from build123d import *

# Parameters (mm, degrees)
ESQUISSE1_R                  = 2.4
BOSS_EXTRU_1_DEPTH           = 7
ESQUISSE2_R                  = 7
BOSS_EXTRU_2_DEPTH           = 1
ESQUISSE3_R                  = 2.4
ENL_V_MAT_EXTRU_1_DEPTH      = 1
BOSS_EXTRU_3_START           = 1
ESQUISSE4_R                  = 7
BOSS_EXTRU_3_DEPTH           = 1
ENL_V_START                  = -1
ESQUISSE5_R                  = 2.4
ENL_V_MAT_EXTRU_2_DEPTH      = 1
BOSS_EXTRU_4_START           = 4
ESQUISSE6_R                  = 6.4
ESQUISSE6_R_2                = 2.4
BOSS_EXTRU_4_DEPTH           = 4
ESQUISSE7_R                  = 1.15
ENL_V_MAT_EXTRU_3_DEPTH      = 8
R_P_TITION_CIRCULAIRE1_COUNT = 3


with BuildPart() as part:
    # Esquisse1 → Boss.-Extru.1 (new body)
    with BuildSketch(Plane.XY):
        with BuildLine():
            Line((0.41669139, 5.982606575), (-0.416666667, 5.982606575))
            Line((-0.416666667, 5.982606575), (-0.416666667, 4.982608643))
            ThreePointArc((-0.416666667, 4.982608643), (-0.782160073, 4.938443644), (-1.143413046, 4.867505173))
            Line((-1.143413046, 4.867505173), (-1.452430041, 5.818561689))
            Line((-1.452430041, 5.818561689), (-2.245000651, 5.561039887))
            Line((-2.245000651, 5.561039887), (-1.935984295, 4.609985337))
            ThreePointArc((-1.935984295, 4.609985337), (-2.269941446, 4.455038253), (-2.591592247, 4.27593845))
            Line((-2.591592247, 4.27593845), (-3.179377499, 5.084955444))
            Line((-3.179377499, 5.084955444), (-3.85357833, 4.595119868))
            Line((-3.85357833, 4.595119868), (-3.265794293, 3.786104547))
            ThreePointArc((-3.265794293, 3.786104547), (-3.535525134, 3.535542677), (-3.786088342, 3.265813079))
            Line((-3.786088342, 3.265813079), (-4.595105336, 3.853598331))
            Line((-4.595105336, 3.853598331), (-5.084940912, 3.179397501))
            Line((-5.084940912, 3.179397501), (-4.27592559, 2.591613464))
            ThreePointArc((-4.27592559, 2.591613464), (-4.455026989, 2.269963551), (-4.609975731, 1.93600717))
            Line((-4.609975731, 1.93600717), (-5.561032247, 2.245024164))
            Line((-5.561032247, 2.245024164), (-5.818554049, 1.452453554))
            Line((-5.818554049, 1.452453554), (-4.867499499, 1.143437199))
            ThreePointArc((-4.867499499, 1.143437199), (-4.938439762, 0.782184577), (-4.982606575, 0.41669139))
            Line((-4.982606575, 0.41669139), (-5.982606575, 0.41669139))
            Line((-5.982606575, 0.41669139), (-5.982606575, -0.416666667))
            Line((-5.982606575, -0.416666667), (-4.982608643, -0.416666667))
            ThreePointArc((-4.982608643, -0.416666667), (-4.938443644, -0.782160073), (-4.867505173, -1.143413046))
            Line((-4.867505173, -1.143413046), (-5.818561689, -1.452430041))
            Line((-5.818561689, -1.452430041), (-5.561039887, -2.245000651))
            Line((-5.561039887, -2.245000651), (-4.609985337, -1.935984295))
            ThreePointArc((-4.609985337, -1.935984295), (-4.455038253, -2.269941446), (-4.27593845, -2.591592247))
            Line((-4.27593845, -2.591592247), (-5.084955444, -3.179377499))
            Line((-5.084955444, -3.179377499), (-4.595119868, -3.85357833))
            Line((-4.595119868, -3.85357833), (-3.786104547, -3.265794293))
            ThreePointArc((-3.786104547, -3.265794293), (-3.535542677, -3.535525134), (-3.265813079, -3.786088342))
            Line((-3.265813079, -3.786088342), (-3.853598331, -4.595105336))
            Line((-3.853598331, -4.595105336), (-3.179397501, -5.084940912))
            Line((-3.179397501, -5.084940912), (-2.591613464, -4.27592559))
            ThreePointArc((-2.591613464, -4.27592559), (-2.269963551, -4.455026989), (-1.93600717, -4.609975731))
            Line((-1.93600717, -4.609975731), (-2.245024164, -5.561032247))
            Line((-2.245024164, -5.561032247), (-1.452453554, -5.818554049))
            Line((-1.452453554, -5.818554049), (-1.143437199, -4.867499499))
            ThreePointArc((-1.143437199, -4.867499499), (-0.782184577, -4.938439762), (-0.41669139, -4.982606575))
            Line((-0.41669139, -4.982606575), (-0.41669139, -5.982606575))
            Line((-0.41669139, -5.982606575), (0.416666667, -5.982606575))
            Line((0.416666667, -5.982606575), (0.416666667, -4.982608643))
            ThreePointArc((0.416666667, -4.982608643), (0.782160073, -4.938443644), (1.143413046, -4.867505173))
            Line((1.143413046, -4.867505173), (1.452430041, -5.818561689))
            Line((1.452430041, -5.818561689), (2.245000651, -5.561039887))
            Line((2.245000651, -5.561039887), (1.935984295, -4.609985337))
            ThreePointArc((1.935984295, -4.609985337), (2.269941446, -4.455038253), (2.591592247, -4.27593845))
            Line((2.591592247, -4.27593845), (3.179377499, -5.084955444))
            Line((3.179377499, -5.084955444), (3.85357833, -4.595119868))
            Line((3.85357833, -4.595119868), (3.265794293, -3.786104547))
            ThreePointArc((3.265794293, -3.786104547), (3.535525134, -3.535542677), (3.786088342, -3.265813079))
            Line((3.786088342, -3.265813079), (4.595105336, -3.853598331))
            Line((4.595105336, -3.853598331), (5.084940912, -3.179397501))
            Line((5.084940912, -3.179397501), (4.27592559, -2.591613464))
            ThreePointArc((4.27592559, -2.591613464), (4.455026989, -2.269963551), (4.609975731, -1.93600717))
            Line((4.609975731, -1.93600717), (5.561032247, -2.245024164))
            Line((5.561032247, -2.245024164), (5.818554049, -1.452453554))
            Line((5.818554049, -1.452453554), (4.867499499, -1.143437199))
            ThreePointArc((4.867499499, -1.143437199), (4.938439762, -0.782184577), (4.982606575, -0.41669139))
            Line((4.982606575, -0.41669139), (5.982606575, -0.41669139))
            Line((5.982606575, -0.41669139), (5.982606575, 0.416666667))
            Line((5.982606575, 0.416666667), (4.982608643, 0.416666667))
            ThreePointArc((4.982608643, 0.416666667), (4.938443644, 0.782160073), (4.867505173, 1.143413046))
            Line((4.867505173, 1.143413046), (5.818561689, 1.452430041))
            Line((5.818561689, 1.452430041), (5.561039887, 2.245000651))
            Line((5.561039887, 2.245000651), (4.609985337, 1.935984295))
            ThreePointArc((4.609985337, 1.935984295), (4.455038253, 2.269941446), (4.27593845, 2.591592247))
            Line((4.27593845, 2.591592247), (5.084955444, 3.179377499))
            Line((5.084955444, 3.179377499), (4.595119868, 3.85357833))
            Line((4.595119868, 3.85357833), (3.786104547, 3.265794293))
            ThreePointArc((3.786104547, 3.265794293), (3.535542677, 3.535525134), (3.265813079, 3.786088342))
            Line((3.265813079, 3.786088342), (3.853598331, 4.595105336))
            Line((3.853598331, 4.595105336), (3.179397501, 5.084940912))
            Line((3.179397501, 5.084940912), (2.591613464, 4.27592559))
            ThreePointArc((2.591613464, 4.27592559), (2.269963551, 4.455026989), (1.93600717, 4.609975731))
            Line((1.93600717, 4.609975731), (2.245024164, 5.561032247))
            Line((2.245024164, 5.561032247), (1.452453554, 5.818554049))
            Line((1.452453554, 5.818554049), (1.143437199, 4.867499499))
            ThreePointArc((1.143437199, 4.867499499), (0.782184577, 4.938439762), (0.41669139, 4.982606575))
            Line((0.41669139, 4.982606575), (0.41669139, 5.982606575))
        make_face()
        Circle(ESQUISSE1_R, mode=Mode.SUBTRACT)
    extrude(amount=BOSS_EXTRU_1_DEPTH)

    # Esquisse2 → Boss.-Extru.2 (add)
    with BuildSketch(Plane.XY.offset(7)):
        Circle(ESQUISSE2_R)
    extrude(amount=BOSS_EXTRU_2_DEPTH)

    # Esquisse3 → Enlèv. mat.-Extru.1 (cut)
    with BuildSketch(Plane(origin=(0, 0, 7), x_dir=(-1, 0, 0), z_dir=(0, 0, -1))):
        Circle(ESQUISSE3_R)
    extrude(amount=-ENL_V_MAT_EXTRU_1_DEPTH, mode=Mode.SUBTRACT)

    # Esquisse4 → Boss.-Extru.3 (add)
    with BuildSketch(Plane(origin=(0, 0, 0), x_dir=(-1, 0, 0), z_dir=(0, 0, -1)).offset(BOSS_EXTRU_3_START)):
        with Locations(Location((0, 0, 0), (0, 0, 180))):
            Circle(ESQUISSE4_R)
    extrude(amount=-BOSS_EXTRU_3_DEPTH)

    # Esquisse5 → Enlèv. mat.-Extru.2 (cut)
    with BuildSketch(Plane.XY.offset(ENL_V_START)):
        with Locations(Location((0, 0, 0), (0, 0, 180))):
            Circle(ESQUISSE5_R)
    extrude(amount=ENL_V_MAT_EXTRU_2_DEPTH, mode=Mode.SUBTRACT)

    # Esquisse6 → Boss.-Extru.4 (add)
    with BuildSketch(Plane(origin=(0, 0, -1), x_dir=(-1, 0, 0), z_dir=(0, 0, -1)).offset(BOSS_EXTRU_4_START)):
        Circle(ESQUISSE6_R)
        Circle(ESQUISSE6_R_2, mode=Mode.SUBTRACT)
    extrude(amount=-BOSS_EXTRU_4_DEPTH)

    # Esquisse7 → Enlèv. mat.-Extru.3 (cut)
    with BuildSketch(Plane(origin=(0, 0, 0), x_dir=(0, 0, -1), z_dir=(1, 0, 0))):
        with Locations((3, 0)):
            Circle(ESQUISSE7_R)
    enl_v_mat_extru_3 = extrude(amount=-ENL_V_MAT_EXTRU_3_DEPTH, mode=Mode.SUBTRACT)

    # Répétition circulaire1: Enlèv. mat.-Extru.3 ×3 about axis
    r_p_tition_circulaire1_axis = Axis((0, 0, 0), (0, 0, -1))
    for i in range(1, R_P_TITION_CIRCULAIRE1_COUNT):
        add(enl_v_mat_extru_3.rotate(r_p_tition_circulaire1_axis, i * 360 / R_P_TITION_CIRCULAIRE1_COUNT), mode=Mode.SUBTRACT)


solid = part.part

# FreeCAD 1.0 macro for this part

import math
import FreeCAD as App
import Part
import Sketcher

V = App.Vector
Q = App.Units.Quantity

doc = App.newDocument("Part")
body = doc.addObject("PartDesign::Body", "Body")

# Sketch on XY plane
sketch1 = doc.addObject("Sketcher::SketchObject", "Sketch")
body.addObject(sketch1)
sketch1.AttachmentSupport = (doc.XY_Plane, [""])
sketch1.MapMode = "FlatFace"
sketch1.addGeometry([
    Part.LineSegment(V(0.416691, 5.982607, 0), V(-0.416667, 5.982607, 0)),  # 0
    Part.LineSegment(V(-0.416667, 5.982607, 0), V(-0.416667, 4.982609, 0)),  # 1
    Part.ArcOfCircle(Part.Circle(V(0, 0, 0), V(0, 0, 1), 5), math.radians(94.780192), math.radians(103.219524)),  # 2
    Part.LineSegment(V(-1.143413, 4.867505, 0), V(-1.45243, 5.818562, 0)),  # 3
    Part.LineSegment(V(-1.45243, 5.818562, 0), V(-2.245001, 5.56104, 0)),  # 4
    Part.LineSegment(V(-2.245001, 5.56104, 0), V(-1.935984, 4.609985, 0)),  # 5
    Part.ArcOfCircle(Part.Circle(V(0, 0, 0), V(0, 0, 1), 5), math.radians(112.780192), math.radians(121.219524)),  # 6
    Part.LineSegment(V(-2.591592, 4.275938, 0), V(-3.179377, 5.084955, 0)),  # 7
    Part.LineSegment(V(-3.179377, 5.084955, 0), V(-3.853578, 4.59512, 0)),  # 8
    Part.LineSegment(V(-3.853578, 4.59512, 0), V(-3.265794, 3.786105, 0)),  # 9
    Part.ArcOfCircle(Part.Circle(V(0, 0, 0), V(0, 0, 1), 5), math.radians(130.780192), math.radians(139.219524)),  # 10
    Part.LineSegment(V(-3.786088, 3.265813, 0), V(-4.595105, 3.853598, 0)),  # 11
    Part.LineSegment(V(-4.595105, 3.853598, 0), V(-5.084941, 3.179398, 0)),  # 12
    Part.LineSegment(V(-5.084941, 3.179398, 0), V(-4.275926, 2.591613, 0)),  # 13
    Part.ArcOfCircle(Part.Circle(V(0, 0, 0), V(0, 0, 1), 5), math.radians(148.780192), math.radians(157.219524)),  # 14
    Part.LineSegment(V(-4.609976, 1.936007, 0), V(-5.561032, 2.245024, 0)),  # 15
    Part.LineSegment(V(-5.561032, 2.245024, 0), V(-5.818554, 1.452454, 0)),  # 16
    Part.LineSegment(V(-5.818554, 1.452454, 0), V(-4.867499, 1.143437, 0)),  # 17
    Part.ArcOfCircle(Part.Circle(V(0, 0, 0), V(0, 0, 1), 5), math.radians(166.780192), math.radians(175.219524)),  # 18
    Part.LineSegment(V(-4.982607, 0.416691, 0), V(-5.982607, 0.416691, 0)),  # 19
    Part.LineSegment(V(-5.982607, 0.416691, 0), V(-5.982607, -0.416667, 0)),  # 20
    Part.LineSegment(V(-5.982607, -0.416667, 0), V(-4.982609, -0.416667, 0)),  # 21
    Part.ArcOfCircle(Part.Circle(V(0, 0, 0), V(0, 0, 1), 5), math.radians(-175.219808), math.radians(-166.780476)),  # 22
    Part.LineSegment(V(-4.867505, -1.143413, 0), V(-5.818562, -1.45243, 0)),  # 23
    Part.LineSegment(V(-5.818562, -1.45243, 0), V(-5.56104, -2.245001, 0)),  # 24
    Part.LineSegment(V(-5.56104, -2.245001, 0), V(-4.609985, -1.935984, 0)),  # 25
    Part.ArcOfCircle(Part.Circle(V(0, 0, 0), V(0, 0, 1), 5), math.radians(-157.219808), math.radians(-148.780476)),  # 26
    Part.LineSegment(V(-4.275938, -2.591592, 0), V(-5.084955, -3.179377, 0)),  # 27
    Part.LineSegment(V(-5.084955, -3.179377, 0), V(-4.59512, -3.853578, 0)),  # 28
    Part.LineSegment(V(-4.59512, -3.853578, 0), V(-3.786105, -3.265794, 0)),  # 29
    Part.ArcOfCircle(Part.Circle(V(0, 0, 0), V(0, 0, 1), 5), math.radians(-139.219808), math.radians(-130.780476)),  # 30
    Part.LineSegment(V(-3.265813, -3.786088, 0), V(-3.853598, -4.595105, 0)),  # 31
    Part.LineSegment(V(-3.853598, -4.595105, 0), V(-3.179398, -5.084941, 0)),  # 32
    Part.LineSegment(V(-3.179398, -5.084941, 0), V(-2.591613, -4.275926, 0)),  # 33
    Part.ArcOfCircle(Part.Circle(V(0, 0, 0), V(0, 0, 1), 5), math.radians(-121.219808), math.radians(-112.780476)),  # 34
    Part.LineSegment(V(-1.936007, -4.609976, 0), V(-2.245024, -5.561032, 0)),  # 35
    Part.LineSegment(V(-2.245024, -5.561032, 0), V(-1.452454, -5.818554, 0)),  # 36
    Part.LineSegment(V(-1.452454, -5.818554, 0), V(-1.143437, -4.867499, 0)),  # 37
    Part.ArcOfCircle(Part.Circle(V(0, 0, 0), V(0, 0, 1), 5), math.radians(-103.219808), math.radians(-94.780476)),  # 38
    Part.LineSegment(V(-0.416691, -4.982607, 0), V(-0.416691, -5.982607, 0)),  # 39
    Part.LineSegment(V(-0.416691, -5.982607, 0), V(0.416667, -5.982607, 0)),  # 40
    Part.LineSegment(V(0.416667, -5.982607, 0), V(0.416667, -4.982609, 0)),  # 41
    Part.ArcOfCircle(Part.Circle(V(0, 0, 0), V(0, 0, 1), 5), math.radians(-85.219808), math.radians(-76.780476)),  # 42
    Part.LineSegment(V(1.143413, -4.867505, 0), V(1.45243, -5.818562, 0)),  # 43
    Part.LineSegment(V(1.45243, -5.818562, 0), V(2.245001, -5.56104, 0)),  # 44
    Part.LineSegment(V(2.245001, -5.56104, 0), V(1.935984, -4.609985, 0)),  # 45
    Part.ArcOfCircle(Part.Circle(V(0, 0, 0), V(0, 0, 1), 5), math.radians(-67.219808), math.radians(-58.780476)),  # 46
    Part.LineSegment(V(2.591592, -4.275938, 0), V(3.179377, -5.084955, 0)),  # 47
    Part.LineSegment(V(3.179377, -5.084955, 0), V(3.853578, -4.59512, 0)),  # 48
    Part.LineSegment(V(3.853578, -4.59512, 0), V(3.265794, -3.786105, 0)),  # 49
    Part.ArcOfCircle(Part.Circle(V(0, 0, 0), V(0, 0, 1), 5), math.radians(-49.219808), math.radians(-40.780476)),  # 50
    Part.LineSegment(V(3.786088, -3.265813, 0), V(4.595105, -3.853598, 0)),  # 51
    Part.LineSegment(V(4.595105, -3.853598, 0), V(5.084941, -3.179398, 0)),  # 52
    Part.LineSegment(V(5.084941, -3.179398, 0), V(4.275926, -2.591613, 0)),  # 53
    Part.ArcOfCircle(Part.Circle(V(0, 0, 0), V(0, 0, 1), 5), math.radians(-31.219808), math.radians(-22.780476)),  # 54
    Part.LineSegment(V(4.609976, -1.936007, 0), V(5.561032, -2.245024, 0)),  # 55
    Part.LineSegment(V(5.561032, -2.245024, 0), V(5.818554, -1.452454, 0)),  # 56
    Part.LineSegment(V(5.818554, -1.452454, 0), V(4.867499, -1.143437, 0)),  # 57
    Part.ArcOfCircle(Part.Circle(V(0, 0, 0), V(0, 0, 1), 5), math.radians(-13.219808), math.radians(-4.780476)),  # 58
    Part.LineSegment(V(4.982607, -0.416691, 0), V(5.982607, -0.416691, 0)),  # 59
    Part.LineSegment(V(5.982607, -0.416691, 0), V(5.982607, 0.416667, 0)),  # 60
    Part.LineSegment(V(5.982607, 0.416667, 0), V(4.982609, 0.416667, 0)),  # 61
    Part.ArcOfCircle(Part.Circle(V(0, 0, 0), V(0, 0, 1), 5), math.radians(4.780192), math.radians(13.219524)),  # 62
    Part.LineSegment(V(4.867505, 1.143413, 0), V(5.818562, 1.45243, 0)),  # 63
    Part.LineSegment(V(5.818562, 1.45243, 0), V(5.56104, 2.245001, 0)),  # 64
    Part.LineSegment(V(5.56104, 2.245001, 0), V(4.609985, 1.935984, 0)),  # 65
    Part.ArcOfCircle(Part.Circle(V(0, 0, 0), V(0, 0, 1), 5), math.radians(22.780192), math.radians(31.219524)),  # 66
    Part.LineSegment(V(4.275938, 2.591592, 0), V(5.084955, 3.179377, 0)),  # 67
    Part.LineSegment(V(5.084955, 3.179377, 0), V(4.59512, 3.853578, 0)),  # 68
    Part.LineSegment(V(4.59512, 3.853578, 0), V(3.786105, 3.265794, 0)),  # 69
    Part.ArcOfCircle(Part.Circle(V(0, 0, 0), V(0, 0, 1), 5), math.radians(40.780192), math.radians(49.219524)),  # 70
    Part.LineSegment(V(3.265813, 3.786088, 0), V(3.853598, 4.595105, 0)),  # 71
    Part.LineSegment(V(3.853598, 4.595105, 0), V(3.179398, 5.084941, 0)),  # 72
    Part.LineSegment(V(3.179398, 5.084941, 0), V(2.591613, 4.275926, 0)),  # 73
    Part.ArcOfCircle(Part.Circle(V(0, 0, 0), V(0, 0, 1), 5), math.radians(58.780192), math.radians(67.219524)),  # 74
    Part.LineSegment(V(1.936007, 4.609976, 0), V(2.245024, 5.561032, 0)),  # 75
    Part.LineSegment(V(2.245024, 5.561032, 0), V(1.452454, 5.818554, 0)),  # 76
    Part.LineSegment(V(1.452454, 5.818554, 0), V(1.143437, 4.867499, 0)),  # 77
    Part.ArcOfCircle(Part.Circle(V(0, 0, 0), V(0, 0, 1), 5), math.radians(76.780192), math.radians(85.219524)),  # 78
    Part.LineSegment(V(0.416691, 4.982607, 0), V(0.416691, 5.982607, 0)),  # 79
    Part.Circle(V(0, 0, 0), V(0, 0, 1), 2.4),  # 80
], False)
sketch1.addConstraint([
    Sketcher.Constraint("Coincident", 0, 2, 1, 1),
    Sketcher.Constraint("Coincident", 1, 2, 2, 1),
    Sketcher.Constraint("Coincident", 2, 2, 3, 1),
    Sketcher.Constraint("Coincident", 3, 2, 4, 1),
    Sketcher.Constraint("Coincident", 4, 2, 5, 1),
    Sketcher.Constraint("Coincident", 5, 2, 6, 1),
    Sketcher.Constraint("Coincident", 6, 2, 7, 1),
    Sketcher.Constraint("Coincident", 7, 2, 8, 1),
    Sketcher.Constraint("Coincident", 8, 2, 9, 1),
    Sketcher.Constraint("Coincident", 9, 2, 10, 1),
    Sketcher.Constraint("Coincident", 10, 2, 11, 1),
    Sketcher.Constraint("Coincident", 11, 2, 12, 1),
    Sketcher.Constraint("Coincident", 12, 2, 13, 1),
    Sketcher.Constraint("Coincident", 13, 2, 14, 1),
    Sketcher.Constraint("Coincident", 14, 2, 15, 1),
    Sketcher.Constraint("Coincident", 15, 2, 16, 1),
    Sketcher.Constraint("Coincident", 16, 2, 17, 1),
    Sketcher.Constraint("Coincident", 17, 2, 18, 1),
    Sketcher.Constraint("Coincident", 18, 2, 19, 1),
    Sketcher.Constraint("Coincident", 19, 2, 20, 1),
    Sketcher.Constraint("Coincident", 20, 2, 21, 1),
    Sketcher.Constraint("Coincident", 21, 2, 22, 1),
    Sketcher.Constraint("Coincident", 22, 2, 23, 1),
    Sketcher.Constraint("Coincident", 23, 2, 24, 1),
    Sketcher.Constraint("Coincident", 24, 2, 25, 1),
    Sketcher.Constraint("Coincident", 25, 2, 26, 1),
    Sketcher.Constraint("Coincident", 26, 2, 27, 1),
    Sketcher.Constraint("Coincident", 27, 2, 28, 1),
    Sketcher.Constraint("Coincident", 28, 2, 29, 1),
    Sketcher.Constraint("Coincident", 29, 2, 30, 1),
    Sketcher.Constraint("Coincident", 30, 2, 31, 1),
    Sketcher.Constraint("Coincident", 31, 2, 32, 1),
    Sketcher.Constraint("Coincident", 32, 2, 33, 1),
    Sketcher.Constraint("Coincident", 33, 2, 34, 1),
    Sketcher.Constraint("Coincident", 34, 2, 35, 1),
    Sketcher.Constraint("Coincident", 35, 2, 36, 1),
    Sketcher.Constraint("Coincident", 36, 2, 37, 1),
    Sketcher.Constraint("Coincident", 37, 2, 38, 1),
    Sketcher.Constraint("Coincident", 38, 2, 39, 1),
    Sketcher.Constraint("Coincident", 39, 2, 40, 1),
    Sketcher.Constraint("Coincident", 40, 2, 41, 1),
    Sketcher.Constraint("Coincident", 41, 2, 42, 1),
    Sketcher.Constraint("Coincident", 42, 2, 43, 1),
    Sketcher.Constraint("Coincident", 43, 2, 44, 1),
    Sketcher.Constraint("Coincident", 44, 2, 45, 1),
    Sketcher.Constraint("Coincident", 45, 2, 46, 1),
    Sketcher.Constraint("Coincident", 46, 2, 47, 1),
    Sketcher.Constraint("Coincident", 47, 2, 48, 1),
    Sketcher.Constraint("Coincident", 48, 2, 49, 1),
    Sketcher.Constraint("Coincident", 49, 2, 50, 1),
    Sketcher.Constraint("Coincident", 50, 2, 51, 1),
    Sketcher.Constraint("Coincident", 51, 2, 52, 1),
    Sketcher.Constraint("Coincident", 52, 2, 53, 1),
    Sketcher.Constraint("Coincident", 53, 2, 54, 1),
    Sketcher.Constraint("Coincident", 54, 2, 55, 1),
    Sketcher.Constraint("Coincident", 55, 2, 56, 1),
    Sketcher.Constraint("Coincident", 56, 2, 57, 1),
    Sketcher.Constraint("Coincident", 57, 2, 58, 1),
    Sketcher.Constraint("Coincident", 58, 2, 59, 1),
    Sketcher.Constraint("Coincident", 59, 2, 60, 1),
    Sketcher.Constraint("Coincident", 60, 2, 61, 1),
    Sketcher.Constraint("Coincident", 61, 2, 62, 1),
    Sketcher.Constraint("Coincident", 62, 2, 63, 1),
    Sketcher.Constraint("Coincident", 63, 2, 64, 1),
    Sketcher.Constraint("Coincident", 64, 2, 65, 1),
    Sketcher.Constraint("Coincident", 65, 2, 66, 1),
    Sketcher.Constraint("Coincident", 66, 2, 67, 1),
    Sketcher.Constraint("Coincident", 67, 2, 68, 1),
    Sketcher.Constraint("Coincident", 68, 2, 69, 1),
    Sketcher.Constraint("Coincident", 69, 2, 70, 1),
    Sketcher.Constraint("Coincident", 70, 2, 71, 1),
    Sketcher.Constraint("Coincident", 71, 2, 72, 1),
    Sketcher.Constraint("Coincident", 72, 2, 73, 1),
    Sketcher.Constraint("Coincident", 73, 2, 74, 1),
    Sketcher.Constraint("Coincident", 74, 2, 75, 1),
    Sketcher.Constraint("Coincident", 75, 2, 76, 1),
    Sketcher.Constraint("Coincident", 76, 2, 77, 1),
    Sketcher.Constraint("Coincident", 77, 2, 78, 1),
    Sketcher.Constraint("Coincident", 78, 2, 79, 1),
    Sketcher.Constraint("Coincident", 79, 2, 0, 1),
    Sketcher.Constraint("Horizontal", 0),
    Sketcher.Constraint("Vertical", 1),
    Sketcher.Constraint("Horizontal", 19),
    Sketcher.Constraint("Vertical", 20),
    Sketcher.Constraint("Horizontal", 21),
    Sketcher.Constraint("Vertical", 39),
    Sketcher.Constraint("Horizontal", 40),
    Sketcher.Constraint("Vertical", 41),
    Sketcher.Constraint("Horizontal", 59),
    Sketcher.Constraint("Vertical", 60),
    Sketcher.Constraint("Horizontal", 61),
    Sketcher.Constraint("Vertical", 79),
    Sketcher.Constraint("Coincident", 2, 3, -1, 1),
    Sketcher.Constraint("Coincident", 6, 3, -1, 1),
    Sketcher.Constraint("Coincident", 10, 3, -1, 1),
    Sketcher.Constraint("Coincident", 14, 3, -1, 1),
    Sketcher.Constraint("Coincident", 18, 3, -1, 1),
    Sketcher.Constraint("Coincident", 22, 3, -1, 1),
    Sketcher.Constraint("Coincident", 26, 3, -1, 1),
    Sketcher.Constraint("Coincident", 30, 3, -1, 1),
    Sketcher.Constraint("Coincident", 34, 3, -1, 1),
    Sketcher.Constraint("Coincident", 38, 3, -1, 1),
    Sketcher.Constraint("Coincident", 42, 3, -1, 1),
    Sketcher.Constraint("Coincident", 46, 3, -1, 1),
    Sketcher.Constraint("Coincident", 50, 3, -1, 1),
    Sketcher.Constraint("Coincident", 54, 3, -1, 1),
    Sketcher.Constraint("Coincident", 58, 3, -1, 1),
    Sketcher.Constraint("Coincident", 62, 3, -1, 1),
    Sketcher.Constraint("Coincident", 66, 3, -1, 1),
    Sketcher.Constraint("Coincident", 70, 3, -1, 1),
    Sketcher.Constraint("Coincident", 74, 3, -1, 1),
    Sketcher.Constraint("Coincident", 78, 3, -1, 1),
    Sketcher.Constraint("Coincident", 80, 3, -1, 1),
    Sketcher.Constraint("Equal", 2, 6),
    Sketcher.Constraint("Equal", 6, 10),
    Sketcher.Constraint("Equal", 10, 14),
    Sketcher.Constraint("Equal", 14, 18),
    Sketcher.Constraint("Equal", 18, 22),
    Sketcher.Constraint("Equal", 22, 26),
    Sketcher.Constraint("Equal", 26, 30),
    Sketcher.Constraint("Equal", 30, 34),
    Sketcher.Constraint("Equal", 34, 38),
    Sketcher.Constraint("Equal", 38, 42),
    Sketcher.Constraint("Equal", 42, 46),
    Sketcher.Constraint("Equal", 46, 50),
    Sketcher.Constraint("Equal", 50, 54),
    Sketcher.Constraint("Equal", 54, 58),
    Sketcher.Constraint("Equal", 58, 62),
    Sketcher.Constraint("Equal", 62, 66),
    Sketcher.Constraint("Equal", 66, 70),
    Sketcher.Constraint("Equal", 70, 74),
    Sketcher.Constraint("Equal", 74, 78),
    Sketcher.Constraint("Symmetric", 0, 2, 40, 2, -1, 1),
    Sketcher.Constraint("Symmetric", 3, 2, 43, 2, -1, 1),
    Sketcher.Constraint("Symmetric", 4, 2, 44, 2, -1, 1),
    Sketcher.Constraint("Symmetric", 7, 2, 47, 2, -1, 1),
    Sketcher.Constraint("Symmetric", 8, 2, 48, 2, -1, 1),
    Sketcher.Constraint("Symmetric", 11, 2, 51, 2, -1, 1),
    Sketcher.Constraint("Symmetric", 12, 2, 52, 2, -1, 1),
    Sketcher.Constraint("Symmetric", 15, 2, 55, 2, -1, 1),
    Sketcher.Constraint("Symmetric", 16, 2, 56, 2, -1, 1),
    Sketcher.Constraint("Symmetric", 19, 2, 59, 2, -1, 1),
    Sketcher.Constraint("Symmetric", 23, 2, 63, 2, -1, 1),
    Sketcher.Constraint("Symmetric", 24, 2, 64, 2, -1, 1),
    Sketcher.Constraint("Symmetric", 27, 2, 67, 2, -1, 1),
    Sketcher.Constraint("Symmetric", 28, 2, 68, 2, -1, 1),
    Sketcher.Constraint("Symmetric", 31, 2, 71, 2, -1, 1),
    Sketcher.Constraint("Symmetric", 32, 2, 72, 2, -1, 1),
    Sketcher.Constraint("Symmetric", 35, 2, 75, 2, -1, 1),
    Sketcher.Constraint("Symmetric", 36, 2, 76, 2, -1, 1),
    Sketcher.Constraint("Perpendicular", 3, 4),
    Sketcher.Constraint("Perpendicular", 4, 5),
    Sketcher.Constraint("Perpendicular", 7, 8),
    Sketcher.Constraint("Perpendicular", 8, 9),
    Sketcher.Constraint("Perpendicular", 11, 12),
    Sketcher.Constraint("Perpendicular", 12, 13),
    Sketcher.Constraint("Perpendicular", 15, 16),
    Sketcher.Constraint("Perpendicular", 16, 17),
    Sketcher.Constraint("Perpendicular", 5, 23),
    Sketcher.Constraint("Perpendicular", 23, 24),
    Sketcher.Constraint("Perpendicular", 24, 25),
    Sketcher.Constraint("Perpendicular", 9, 27),
    Sketcher.Constraint("Perpendicular", 27, 28),
    Sketcher.Constraint("Perpendicular", 28, 29),
    Sketcher.Constraint("Perpendicular", 13, 31),
    Sketcher.Constraint("Perpendicular", 31, 32),
    Sketcher.Constraint("Perpendicular", 32, 33),
    Sketcher.Constraint("Perpendicular", 17, 35),
    Sketcher.Constraint("Perpendicular", 35, 36),
    Sketcher.Constraint("Perpendicular", 36, 37),
    Sketcher.Constraint("Perpendicular", 25, 43),
    Sketcher.Constraint("Perpendicular", 44, 45),
    Sketcher.Constraint("Perpendicular", 29, 47),
    Sketcher.Constraint("Perpendicular", 48, 49),
    Sketcher.Constraint("Perpendicular", 33, 51),
    Sketcher.Constraint("Perpendicular", 52, 53),
    Sketcher.Constraint("Perpendicular", 37, 55),
    Sketcher.Constraint("Perpendicular", 56, 57),
    Sketcher.Constraint("Perpendicular", 45, 63),
    Sketcher.Constraint("Perpendicular", 64, 65),
    Sketcher.Constraint("Perpendicular", 49, 67),
    Sketcher.Constraint("Perpendicular", 68, 69),
    Sketcher.Constraint("Perpendicular", 53, 71),
    Sketcher.Constraint("Perpendicular", 72, 73),
    Sketcher.Constraint("Perpendicular", 57, 75),
    Sketcher.Constraint("Perpendicular", 76, 77),
    Sketcher.Constraint("Equal", 0, 40),
    Sketcher.Constraint("Equal", 21, 61),
    Sketcher.Constraint("Equal", 61, 1),
    Sketcher.Constraint("Equal", 40, 20),
    Sketcher.Constraint("Equal", 59, 39),
    Sketcher.Constraint("Equal", 3, 7),
    Sketcher.Constraint("Equal", 4, 8),
    Sketcher.Constraint("Equal", 5, 9),
    Sketcher.Constraint("Equal", 7, 11),
    Sketcher.Constraint("Equal", 8, 12),
    Sketcher.Constraint("Equal", 9, 13),
    Sketcher.Constraint("Equal", 11, 15),
    Sketcher.Constraint("Equal", 12, 16),
    Sketcher.Constraint("Equal", 13, 17),
    Sketcher.Constraint("Equal", 15, 23),
    Sketcher.Constraint("Equal", 16, 24),
    Sketcher.Constraint("Equal", 17, 25),
    Sketcher.Constraint("Equal", 23, 27),
    Sketcher.Constraint("Equal", 24, 28),
    Sketcher.Constraint("Equal", 25, 29),
    Sketcher.Constraint("Equal", 27, 31),
    Sketcher.Constraint("Equal", 28, 32),
    Sketcher.Constraint("Equal", 29, 33),
    Sketcher.Constraint("Equal", 31, 35),
    Sketcher.Constraint("Equal", 32, 36),
    Sketcher.Constraint("Equal", 33, 37),
    Sketcher.Constraint("Radius", 2, Q("5 mm")),
    Sketcher.Constraint("Diameter", 80, Q("4.8 mm")),
    Sketcher.Constraint("DistanceX", 19, 2, 19, 1, Q("1 mm")),
    Sketcher.Constraint("Angle", 3, Q("108 deg")),
    Sketcher.Constraint("Angle", 7, Q("126 deg")),
    Sketcher.Constraint("Angle", 11, Q("144 deg")),
    Sketcher.Constraint("Angle", 15, Q("162 deg")),
    Sketcher.Constraint("Distance", 3, Q("1 mm")),
    Sketcher.Constraint("DistanceX", 4, 2, -1, 1, Q("2.245001 mm")),
    Sketcher.Constraint("DistanceX", 0, 2, 0, 1, Q("0.833358 mm")),
    Sketcher.Constraint("DistanceY", -1, 1, 11, 2, Q("3.853598 mm")),
    Sketcher.Constraint("DistanceX", 21, 1, 21, 2, Q("0.999998 mm")),
])
pad1 = doc.addObject("PartDesign::Pad", "Pad")
body.addObject(pad1)
pad1.Profile = sketch1
pad1.Length = 7

# Sketch on XY plane
sketch2 = doc.addObject("Sketcher::SketchObject", "Sketch001")
body.addObject(sketch2)
sketch2.AttachmentSupport = (doc.XY_Plane, [""])
sketch2.MapMode = "FlatFace"
sketch2.AttachmentOffset = App.Placement(V(0, 0, 7), App.Rotation())
sketch2.addGeometry(Part.Circle(V(0, 0, 0), V(0, 0, 1), 7), False)
sketch2.addConstraint([
    Sketcher.Constraint("Coincident", 0, 3, -1, 1),
    Sketcher.Constraint("Diameter", 0, Q("14 mm")),
])
pad2 = doc.addObject("PartDesign::Pad", "Pad001")
body.addObject(pad2)
pad2.Profile = sketch2
pad2.Length = 1

# Sketch on XY plane
sketch3 = doc.addObject("Sketcher::SketchObject", "Sketch002")
body.addObject(sketch3)
sketch3.AttachmentSupport = (doc.XY_Plane, [""])
sketch3.MapMode = "FlatFace"
sketch3.AttachmentOffset = App.Placement(V(0, 0, 7), App.Rotation())
sketch3.addGeometry(Part.Circle(V(0, 0, 0), V(0, 0, 1), 2.4), False)
sketch3.addConstraint([
    Sketcher.Constraint("Coincident", 0, 3, -1, 1),
    Sketcher.Constraint("Diameter", 0, Q("4.8 mm")),
])
pocket1 = doc.addObject("PartDesign::Pocket", "Pocket")
body.addObject(pocket1)
pocket1.Profile = sketch3
pocket1.Length = 1
pocket1.Reversed = True

# Sketch on XY plane
sketch4 = doc.addObject("Sketcher::SketchObject", "Sketch003")
body.addObject(sketch4)
sketch4.AttachmentSupport = (doc.XY_Plane, [""])
sketch4.MapMode = "FlatFace"
sketch4.AttachmentOffset = App.Placement(V(0, 0, -1), App.Rotation())
sketch4.addGeometry(Part.Circle(V(0, 0, 0), V(0, 0, 1), 7), False)
sketch4.addConstraint([
    Sketcher.Constraint("Coincident", 0, 3, -1, 1),
    Sketcher.Constraint("Diameter", 0, Q("14 mm")),
])
pad3 = doc.addObject("PartDesign::Pad", "Pad002")
body.addObject(pad3)
pad3.Profile = sketch4
pad3.Length = 1

# Sketch on XY plane
sketch5 = doc.addObject("Sketcher::SketchObject", "Sketch004")
body.addObject(sketch5)
sketch5.AttachmentSupport = (doc.XY_Plane, [""])
sketch5.MapMode = "FlatFace"
sketch5.AttachmentOffset = App.Placement(V(0, 0, -1), App.Rotation())
sketch5.addGeometry(Part.Circle(V(0, 0, 0), V(0, 0, 1), 2.4), False)
sketch5.addConstraint([
    Sketcher.Constraint("Coincident", 0, 3, -1, 1),
    Sketcher.Constraint("Diameter", 0, Q("4.8 mm")),
])
pocket2 = doc.addObject("PartDesign::Pocket", "Pocket001")
body.addObject(pocket2)
pocket2.Profile = sketch5
pocket2.Length = 1
pocket2.Reversed = True

# Sketch on XY plane
sketch6 = doc.addObject("Sketcher::SketchObject", "Sketch005")
body.addObject(sketch6)
sketch6.AttachmentSupport = (doc.XY_Plane, [""])
sketch6.MapMode = "FlatFace"
sketch6.AttachmentOffset = App.Placement(V(0, 0, -5), App.Rotation())
sketch6.addGeometry([
    Part.Circle(V(0, 0, 0), V(0, 0, 1), 6.4),
    Part.Circle(V(0, 0, 0), V(0, 0, 1), 2.4),
], False)
sketch6.addConstraint([
    Sketcher.Constraint("Coincident", 0, 3, -1, 1),
    Sketcher.Constraint("Coincident", 1, 3, -1, 1),
    Sketcher.Constraint("Diameter", 0, Q("12.8 mm")),
    Sketcher.Constraint("Diameter", 1, Q("4.8 mm")),
])
pad4 = doc.addObject("PartDesign::Pad", "Pad003")
body.addObject(pad4)
pad4.Profile = sketch6
pad4.Length = 4

# Sketch on YZ plane
sketch7 = doc.addObject("Sketcher::SketchObject", "Sketch006")
body.addObject(sketch7)
sketch7.AttachmentSupport = (doc.YZ_Plane, [""])
sketch7.MapMode = "FlatFace"
sketch7.addGeometry(Part.Circle(V(0, -3, 0), V(0, 0, 1), 1.15), False)
sketch7.addConstraint([
    Sketcher.Constraint("PointOnObject", 0, 3, -2),
    Sketcher.Constraint("Diameter", 0, Q("2.3 mm")),
    Sketcher.Constraint("DistanceY", 0, 3, -1, 1, Q("3 mm")),
])
pocket3 = doc.addObject("PartDesign::Pocket", "Pocket002")
body.addObject(pocket3)
pocket3.Profile = sketch7
pocket3.Length = 8
doc.recompute()

polarpattern = doc.addObject("PartDesign::PolarPattern", "PolarPattern")
body.addObject(polarpattern)
polarpattern.Originals = [pocket3]
polarpattern.Axis = (doc.Z_Axis, [""])
polarpattern.Angle = 360
polarpattern.Occurrences = 3
body.Tip = polarpattern

doc.recompute()
